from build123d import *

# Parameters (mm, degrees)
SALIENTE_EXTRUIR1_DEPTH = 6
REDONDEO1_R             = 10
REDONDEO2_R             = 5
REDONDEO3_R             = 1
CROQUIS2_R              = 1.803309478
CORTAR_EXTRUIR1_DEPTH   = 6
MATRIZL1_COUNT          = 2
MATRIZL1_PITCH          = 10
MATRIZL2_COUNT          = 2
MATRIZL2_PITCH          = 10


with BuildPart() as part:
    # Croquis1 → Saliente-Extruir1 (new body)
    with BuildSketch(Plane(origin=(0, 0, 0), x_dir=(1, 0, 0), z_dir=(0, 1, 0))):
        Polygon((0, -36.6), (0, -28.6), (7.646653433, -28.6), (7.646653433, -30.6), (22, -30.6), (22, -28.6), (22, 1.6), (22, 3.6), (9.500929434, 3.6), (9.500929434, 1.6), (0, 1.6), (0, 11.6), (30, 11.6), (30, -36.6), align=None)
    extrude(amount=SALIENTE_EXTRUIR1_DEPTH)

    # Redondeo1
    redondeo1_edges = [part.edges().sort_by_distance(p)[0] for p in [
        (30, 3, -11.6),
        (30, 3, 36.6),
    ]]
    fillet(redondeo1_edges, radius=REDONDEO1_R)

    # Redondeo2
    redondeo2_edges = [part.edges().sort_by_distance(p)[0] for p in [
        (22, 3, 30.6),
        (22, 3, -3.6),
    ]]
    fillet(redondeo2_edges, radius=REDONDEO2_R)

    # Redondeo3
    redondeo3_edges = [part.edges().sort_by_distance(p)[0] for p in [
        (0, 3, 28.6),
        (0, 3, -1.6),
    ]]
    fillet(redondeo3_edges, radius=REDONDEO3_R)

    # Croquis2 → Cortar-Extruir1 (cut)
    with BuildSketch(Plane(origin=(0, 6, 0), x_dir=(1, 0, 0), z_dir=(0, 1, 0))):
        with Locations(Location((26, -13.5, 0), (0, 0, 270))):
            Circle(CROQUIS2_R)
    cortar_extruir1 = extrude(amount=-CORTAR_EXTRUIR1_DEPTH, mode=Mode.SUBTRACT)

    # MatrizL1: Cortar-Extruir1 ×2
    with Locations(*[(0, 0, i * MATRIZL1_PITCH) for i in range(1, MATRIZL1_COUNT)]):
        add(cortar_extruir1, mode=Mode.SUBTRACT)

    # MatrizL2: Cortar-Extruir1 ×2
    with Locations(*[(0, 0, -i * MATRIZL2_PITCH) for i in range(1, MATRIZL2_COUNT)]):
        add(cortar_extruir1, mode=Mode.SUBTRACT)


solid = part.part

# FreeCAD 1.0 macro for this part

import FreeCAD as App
import Part
import Sketcher


def edges_at(feature, points):
    """Names of the edges that pass closest to the given points."""
    edges = feature.Shape.Edges
    near = lambda p: min(range(len(edges)), key=lambda i: edges[i].distToShape(Part.Vertex(*p))[0])
    return sorted({f"Edge{near(p) + 1}" for p in points})


def add_polygon(sketch, points):
    """Adds a closed chain of lines whose ends are joined by coincident constraints."""
    first, n = sketch.GeometryCount, len(points)
    for a, b in zip(points, points[1:] + points[:1]):
        sketch.addGeometry(Part.LineSegment(App.Vector(*a, 0), App.Vector(*b, 0)), False)
    for i in range(n):
        sketch.addConstraint(Sketcher.Constraint("Coincident", first + i, 2, first + (i + 1) % n, 1))

doc = App.newDocument("Part")
params = doc.addObject("Spreadsheet::Sheet", "Params")
for row, (alias, value) in enumerate([
    ("sketch1_width", "30 mm"),
    ("sketch1_height", "8 mm"),
    ("sketch1_height2", "10 mm"),
    ("sketch1_height3", "2 mm"),
    ("sketch1_height4", "48.2 mm"),
    ("pad1_length", "6 mm"),
    ("fillet_radius", "10 mm"),
    ("fillet2_radius", "5 mm"),
    ("fillet3_radius", "1 mm"),
    ("pocket1_length", "6 mm"),
    ("linearpattern_pitch", "10 mm"),
    ("linearpattern2_pitch", "10 mm"),
], start=1):
    params.set(f"A{row}", alias)
    params.set(f"B{row}", "=" + value)
    params.setAlias(f"B{row}", alias)

body = doc.addObject("PartDesign::Body", "Body")

sketch1 = body.newObject("Sketcher::SketchObject", "Sketch")
sketch1.AttachmentSupport = (doc.getObject("XZ_Plane"), [""])
sketch1.MapMode = "FlatFace"
add_polygon(sketch1, [(0, 28.6), (0, 36.6), (30, 36.6), (30, -11.6), (0, -11.6), (0, -1.6), (9.5, -1.6), (9.5, -3.6), (22, -3.6), (22, 30.6), (7.6, 30.6), (7.6, 28.6)])
sketch1.addConstraint([
    Sketcher.Constraint("Vertical", 0),
    Sketcher.Constraint("Horizontal", 1),
    Sketcher.Constraint("Vertical", 2),
    Sketcher.Constraint("Horizontal", 3),
    Sketcher.Constraint("Vertical", 4),
    Sketcher.Constraint("Horizontal", 5),
    Sketcher.Constraint("Vertical", 6),
    Sketcher.Constraint("Horizontal", 7),
    Sketcher.Constraint("Vertical", 8),
    Sketcher.Constraint("Horizontal", 9),
    Sketcher.Constraint("Vertical", 10),
    Sketcher.Constraint("Horizontal", 11),
    Sketcher.Constraint("PointOnObject", 0, 2, -2),
    Sketcher.Constraint("PointOnObject", 3, 2, -2),
    Sketcher.Constraint("Equal", 6, 10),
    Sketcher.Constraint("DistanceX", 1, 1, 1, 2, 30.0),
    Sketcher.Constraint("DistanceY", 0, 1, 0, 2, 8.0),
    Sketcher.Constraint("DistanceY", 4, 1, 4, 2, 10.0),
    Sketcher.Constraint("DistanceY", 6, 2, 6, 1, 2.0),
    Sketcher.Constraint("DistanceY", 2, 2, 2, 1, 48.2),
    Sketcher.Constraint("DistanceX", -1, 1, 7, 2, 22.0),
    Sketcher.Constraint("DistanceY", -1, 1, 0, 2, 36.6),
    Sketcher.Constraint("DistanceX", 5, 1, 5, 2, 9.500929),
    Sketcher.Constraint("DistanceX", 9, 2, 9, 1, 14.353347),
])
sketch1.setExpression("Constraints[27]", "Params.sketch1_width")
sketch1.setExpression("Constraints[28]", "Params.sketch1_height")
sketch1.setExpression("Constraints[29]", "Params.sketch1_height2")
sketch1.setExpression("Constraints[30]", "Params.sketch1_height3")
sketch1.setExpression("Constraints[31]", "Params.sketch1_height4")
pad1 = body.newObject("PartDesign::Pad", "Pad")
pad1.Profile = sketch1
pad1.setExpression("Length", "Params.pad1_length")
pad1.Reversed = True
doc.recompute()

fillet = body.newObject("PartDesign::Fillet", "Fillet")
fillet.Base = (pad1, edges_at(pad1, [(30, 3, -11.6), (30, 3, 36.6)]))
fillet.setExpression("Radius", "Params.fillet_radius")
doc.recompute()

fillet2 = body.newObject("PartDesign::Fillet", "Fillet001")
fillet2.Base = (fillet, edges_at(fillet, [(22, 3, 30.6), (22, 3, -3.6)]))
fillet2.setExpression("Radius", "Params.fillet2_radius")
doc.recompute()

fillet3 = body.newObject("PartDesign::Fillet", "Fillet002")
fillet3.Base = (fillet2, edges_at(fillet2, [(0, 3, 28.6), (0, 3, -1.6)]))
fillet3.setExpression("Radius", "Params.fillet3_radius")

sketch2 = body.newObject("Sketcher::SketchObject", "Sketch001")
sketch2.AttachmentSupport = (doc.getObject("XZ_Plane"), [""])
sketch2.MapMode = "FlatFace"
sketch2.AttachmentOffset = App.Placement(App.Vector(0, 0, -6), App.Rotation())
sketch2.addGeometry(Part.Circle(App.Vector(26, 13.5, 0), App.Vector(0, 0, 1), 1.8), False)
sketch2.addConstraint([
    Sketcher.Constraint("DistanceX", -1, 1, 0, 3, 26.0),
    Sketcher.Constraint("DistanceY", -1, 1, 0, 3, 13.5),
    Sketcher.Constraint("Diameter", 0, 3.606619),
])
pocket1 = body.newObject("PartDesign::Pocket", "Pocket")
pocket1.Profile = sketch2
pocket1.setExpression("Length", "Params.pocket1_length")
pocket1.Reversed = True
doc.recompute()

linearpattern = body.newObject("PartDesign::LinearPattern", "LinearPattern")
linearpattern.Originals = [pocket1]
linearpattern.Direction = (doc.getObject("Z_Axis"), [""])
linearpattern.Mode = "offset"
linearpattern.setExpression("Offset", "Params.linearpattern_pitch")
linearpattern.Occurrences = 2
body.Tip = linearpattern
doc.recompute()

linearpattern2 = body.newObject("PartDesign::LinearPattern", "LinearPattern001")
linearpattern2.Originals = [pocket1]
linearpattern2.Direction = (doc.getObject("Z_Axis"), [""])
linearpattern2.Mode = "offset"
linearpattern2.setExpression("Offset", "Params.linearpattern2_pitch")
linearpattern2.Occurrences = 2
linearpattern2.Reversed = True
body.Tip = linearpattern2

doc.recompute()
